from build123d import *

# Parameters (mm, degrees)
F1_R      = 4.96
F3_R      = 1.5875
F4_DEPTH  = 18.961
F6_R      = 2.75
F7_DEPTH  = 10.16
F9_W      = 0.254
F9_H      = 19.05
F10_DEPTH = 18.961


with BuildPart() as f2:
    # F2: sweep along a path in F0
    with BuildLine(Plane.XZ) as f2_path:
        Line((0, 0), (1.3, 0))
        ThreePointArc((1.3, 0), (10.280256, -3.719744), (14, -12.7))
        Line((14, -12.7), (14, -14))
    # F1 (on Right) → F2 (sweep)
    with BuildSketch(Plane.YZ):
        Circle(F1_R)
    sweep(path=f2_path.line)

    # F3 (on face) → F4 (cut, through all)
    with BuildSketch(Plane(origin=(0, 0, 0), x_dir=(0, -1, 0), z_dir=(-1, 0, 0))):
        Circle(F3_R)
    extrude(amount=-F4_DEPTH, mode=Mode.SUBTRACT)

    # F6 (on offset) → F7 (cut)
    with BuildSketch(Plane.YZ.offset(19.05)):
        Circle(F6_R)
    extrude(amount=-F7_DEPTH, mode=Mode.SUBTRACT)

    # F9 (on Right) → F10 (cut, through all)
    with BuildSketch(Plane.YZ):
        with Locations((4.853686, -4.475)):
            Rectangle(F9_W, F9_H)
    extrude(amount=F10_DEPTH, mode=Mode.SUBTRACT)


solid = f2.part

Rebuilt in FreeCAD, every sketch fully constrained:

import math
import FreeCAD as App
import Part
import Sketcher

V = App.Vector
Q = App.Units.Quantity

doc = App.newDocument("Part")
body = doc.addObject("PartDesign::Body", "Body")

# Sketch on YZ plane
sketch1 = doc.addObject("Sketcher::SketchObject", "Sketch")
body.addObject(sketch1)
sketch1.AttachmentSupport = (doc.YZ_Plane, [""])
sketch1.MapMode = "FlatFace"
sketch1.addGeometry(Part.Circle(V(0, 0, 0), V(0, 0, 1), 5), False)
sketch1.addConstraint(Sketcher.Constraint("Coincident", 0, 3, -1, 1))
sketch1.addConstraint(Sketcher.Constraint("Diameter", 0, 9.92))

# Sketch on XZ plane
sketch2 = doc.addObject("Sketcher::SketchObject", "Sketch001")
body.addObject(sketch2)
sketch2.AttachmentSupport = (doc.XZ_Plane, [""])
sketch2.MapMode = "FlatFace"
sketch2.addGeometry(Part.LineSegment(V(0, 0, 0), V(1.3, 0, 0)), False)
sketch2.addGeometry(Part.ArcOfCircle(Part.Circle(V(1.3, -12.7, 0), V(0, 0, 1), 12.7), math.radians(0), math.radians(90)), False)
sketch2.addGeometry(Part.LineSegment(V(14, -12.7, 0), V(14, -14, 0)), False)
sketch2.addConstraint(Sketcher.Constraint("Tangent", 0, 2, 1, 2))
sketch2.addConstraint(Sketcher.Constraint("Tangent", 1, 1, 2, 1))
sketch2.addConstraint(Sketcher.Constraint("Horizontal", 0))
sketch2.addConstraint(Sketcher.Constraint("Vertical", 2))
sketch2.addConstraint(Sketcher.Constraint("Coincident", 0, 1, -1, 1))
sketch2.addConstraint(Sketcher.Constraint("Equal", 0, 2))
sketch2.addConstraint(Sketcher.Constraint("Radius", 1, Q("0.5 in")))
sketch2.addConstraint(Sketcher.Constraint("DistanceX", 0, 1, 0, 2, 1.3))
doc.recompute()

additivepipe = doc.addObject("PartDesign::AdditivePipe", "AdditivePipe")
body.addObject(additivepipe)
additivepipe.Profile = sketch1
additivepipe.Spine = (sketch2, ["Edge1", "Edge2", "Edge3"])

# Sketch on YZ plane
sketch3 = doc.addObject("Sketcher::SketchObject", "Sketch002")
body.addObject(sketch3)
sketch3.AttachmentSupport = (doc.YZ_Plane, [""])
sketch3.MapMode = "FlatFace"
sketch3.addGeometry(Part.Circle(V(0, 0, 0), V(0, 0, 1), 1.6), False)
sketch3.addConstraint(Sketcher.Constraint("Coincident", 0, 3, -1, 1))
sketch3.addConstraint(Sketcher.Constraint("Diameter", 0, Q("0.125 in")))
pocket1 = doc.addObject("PartDesign::Pocket", "Pocket")
body.addObject(pocket1)
pocket1.Profile = sketch3
pocket1.Type = "ThroughAll"
pocket1.Reversed = True

# Sketch on YZ plane
sketch4 = doc.addObject("Sketcher::SketchObject", "Sketch003")
body.addObject(sketch4)
sketch4.AttachmentSupport = (doc.YZ_Plane, [""])
sketch4.MapMode = "FlatFace"
sketch4.AttachmentOffset = App.Placement(V(0, 0, 0.75 * 25.4), App.Rotation())
sketch4.addGeometry(Part.Circle(V(0, 0, 0), V(0, 0, 1), 2.8), False)
sketch4.addConstraint(Sketcher.Constraint("Coincident", 0, 3, -1, 1))
sketch4.addConstraint(Sketcher.Constraint("Diameter", 0, 5.5))
pocket2 = doc.addObject("PartDesign::Pocket", "Pocket001")
body.addObject(pocket2)
pocket2.Profile = sketch4
pocket2.Length = Q("0.4 in")

# Sketch on YZ plane
sketch5 = doc.addObject("Sketcher::SketchObject", "Sketch004")
body.addObject(sketch5)
sketch5.AttachmentSupport = (doc.YZ_Plane, [""])
sketch5.MapMode = "FlatFace"
sketch5.addGeometry(Part.LineSegment(V(4.73, 5.05, 0), V(4.73, -14, 0)), False)
sketch5.addGeometry(Part.LineSegment(V(4.73, -14, 0), V(4.98, -14, 0)), False)
sketch5.addGeometry(Part.LineSegment(V(4.98, -14, 0), V(4.98, 5.05, 0)), False)
sketch5.addGeometry(Part.LineSegment(V(4.98, 5.05, 0), V(4.73, 5.05, 0)), False)
sketch5.addConstraint(Sketcher.Constraint("Coincident", 0, 2, 1, 1))
sketch5.addConstraint(Sketcher.Constraint("Coincident", 1, 2, 2, 1))
sketch5.addConstraint(Sketcher.Constraint("Coincident", 2, 2, 3, 1))
sketch5.addConstraint(Sketcher.Constraint("Coincident", 3, 2, 0, 1))
sketch5.addConstraint(Sketcher.Constraint("Vertical", 0))
sketch5.addConstraint(Sketcher.Constraint("Horizontal", 1))
sketch5.addConstraint(Sketcher.Constraint("Vertical", 2))
sketch5.addConstraint(Sketcher.Constraint("Horizontal", 3))
sketch5.addConstraint(Sketcher.Constraint("DistanceX", 1, 1, 1, 2, Q("0.01 in")))
sketch5.addConstraint(Sketcher.Constraint("DistanceY", 0, 2, 0, 1, Q("0.75 in")))
sketch5.addConstraint(Sketcher.Constraint("DistanceY", 0, 2, -1, 1, 14.0))
sketch5.addConstraint(Sketcher.Constraint("DistanceX", -1, 1, 0, 2, 4.726686))
pocket3 = doc.addObject("PartDesign::Pocket", "Pocket002")
body.addObject(pocket3)
pocket3.Profile = sketch5
pocket3.Type = "ThroughAll"
pocket3.Reversed = True

doc.recompute()
